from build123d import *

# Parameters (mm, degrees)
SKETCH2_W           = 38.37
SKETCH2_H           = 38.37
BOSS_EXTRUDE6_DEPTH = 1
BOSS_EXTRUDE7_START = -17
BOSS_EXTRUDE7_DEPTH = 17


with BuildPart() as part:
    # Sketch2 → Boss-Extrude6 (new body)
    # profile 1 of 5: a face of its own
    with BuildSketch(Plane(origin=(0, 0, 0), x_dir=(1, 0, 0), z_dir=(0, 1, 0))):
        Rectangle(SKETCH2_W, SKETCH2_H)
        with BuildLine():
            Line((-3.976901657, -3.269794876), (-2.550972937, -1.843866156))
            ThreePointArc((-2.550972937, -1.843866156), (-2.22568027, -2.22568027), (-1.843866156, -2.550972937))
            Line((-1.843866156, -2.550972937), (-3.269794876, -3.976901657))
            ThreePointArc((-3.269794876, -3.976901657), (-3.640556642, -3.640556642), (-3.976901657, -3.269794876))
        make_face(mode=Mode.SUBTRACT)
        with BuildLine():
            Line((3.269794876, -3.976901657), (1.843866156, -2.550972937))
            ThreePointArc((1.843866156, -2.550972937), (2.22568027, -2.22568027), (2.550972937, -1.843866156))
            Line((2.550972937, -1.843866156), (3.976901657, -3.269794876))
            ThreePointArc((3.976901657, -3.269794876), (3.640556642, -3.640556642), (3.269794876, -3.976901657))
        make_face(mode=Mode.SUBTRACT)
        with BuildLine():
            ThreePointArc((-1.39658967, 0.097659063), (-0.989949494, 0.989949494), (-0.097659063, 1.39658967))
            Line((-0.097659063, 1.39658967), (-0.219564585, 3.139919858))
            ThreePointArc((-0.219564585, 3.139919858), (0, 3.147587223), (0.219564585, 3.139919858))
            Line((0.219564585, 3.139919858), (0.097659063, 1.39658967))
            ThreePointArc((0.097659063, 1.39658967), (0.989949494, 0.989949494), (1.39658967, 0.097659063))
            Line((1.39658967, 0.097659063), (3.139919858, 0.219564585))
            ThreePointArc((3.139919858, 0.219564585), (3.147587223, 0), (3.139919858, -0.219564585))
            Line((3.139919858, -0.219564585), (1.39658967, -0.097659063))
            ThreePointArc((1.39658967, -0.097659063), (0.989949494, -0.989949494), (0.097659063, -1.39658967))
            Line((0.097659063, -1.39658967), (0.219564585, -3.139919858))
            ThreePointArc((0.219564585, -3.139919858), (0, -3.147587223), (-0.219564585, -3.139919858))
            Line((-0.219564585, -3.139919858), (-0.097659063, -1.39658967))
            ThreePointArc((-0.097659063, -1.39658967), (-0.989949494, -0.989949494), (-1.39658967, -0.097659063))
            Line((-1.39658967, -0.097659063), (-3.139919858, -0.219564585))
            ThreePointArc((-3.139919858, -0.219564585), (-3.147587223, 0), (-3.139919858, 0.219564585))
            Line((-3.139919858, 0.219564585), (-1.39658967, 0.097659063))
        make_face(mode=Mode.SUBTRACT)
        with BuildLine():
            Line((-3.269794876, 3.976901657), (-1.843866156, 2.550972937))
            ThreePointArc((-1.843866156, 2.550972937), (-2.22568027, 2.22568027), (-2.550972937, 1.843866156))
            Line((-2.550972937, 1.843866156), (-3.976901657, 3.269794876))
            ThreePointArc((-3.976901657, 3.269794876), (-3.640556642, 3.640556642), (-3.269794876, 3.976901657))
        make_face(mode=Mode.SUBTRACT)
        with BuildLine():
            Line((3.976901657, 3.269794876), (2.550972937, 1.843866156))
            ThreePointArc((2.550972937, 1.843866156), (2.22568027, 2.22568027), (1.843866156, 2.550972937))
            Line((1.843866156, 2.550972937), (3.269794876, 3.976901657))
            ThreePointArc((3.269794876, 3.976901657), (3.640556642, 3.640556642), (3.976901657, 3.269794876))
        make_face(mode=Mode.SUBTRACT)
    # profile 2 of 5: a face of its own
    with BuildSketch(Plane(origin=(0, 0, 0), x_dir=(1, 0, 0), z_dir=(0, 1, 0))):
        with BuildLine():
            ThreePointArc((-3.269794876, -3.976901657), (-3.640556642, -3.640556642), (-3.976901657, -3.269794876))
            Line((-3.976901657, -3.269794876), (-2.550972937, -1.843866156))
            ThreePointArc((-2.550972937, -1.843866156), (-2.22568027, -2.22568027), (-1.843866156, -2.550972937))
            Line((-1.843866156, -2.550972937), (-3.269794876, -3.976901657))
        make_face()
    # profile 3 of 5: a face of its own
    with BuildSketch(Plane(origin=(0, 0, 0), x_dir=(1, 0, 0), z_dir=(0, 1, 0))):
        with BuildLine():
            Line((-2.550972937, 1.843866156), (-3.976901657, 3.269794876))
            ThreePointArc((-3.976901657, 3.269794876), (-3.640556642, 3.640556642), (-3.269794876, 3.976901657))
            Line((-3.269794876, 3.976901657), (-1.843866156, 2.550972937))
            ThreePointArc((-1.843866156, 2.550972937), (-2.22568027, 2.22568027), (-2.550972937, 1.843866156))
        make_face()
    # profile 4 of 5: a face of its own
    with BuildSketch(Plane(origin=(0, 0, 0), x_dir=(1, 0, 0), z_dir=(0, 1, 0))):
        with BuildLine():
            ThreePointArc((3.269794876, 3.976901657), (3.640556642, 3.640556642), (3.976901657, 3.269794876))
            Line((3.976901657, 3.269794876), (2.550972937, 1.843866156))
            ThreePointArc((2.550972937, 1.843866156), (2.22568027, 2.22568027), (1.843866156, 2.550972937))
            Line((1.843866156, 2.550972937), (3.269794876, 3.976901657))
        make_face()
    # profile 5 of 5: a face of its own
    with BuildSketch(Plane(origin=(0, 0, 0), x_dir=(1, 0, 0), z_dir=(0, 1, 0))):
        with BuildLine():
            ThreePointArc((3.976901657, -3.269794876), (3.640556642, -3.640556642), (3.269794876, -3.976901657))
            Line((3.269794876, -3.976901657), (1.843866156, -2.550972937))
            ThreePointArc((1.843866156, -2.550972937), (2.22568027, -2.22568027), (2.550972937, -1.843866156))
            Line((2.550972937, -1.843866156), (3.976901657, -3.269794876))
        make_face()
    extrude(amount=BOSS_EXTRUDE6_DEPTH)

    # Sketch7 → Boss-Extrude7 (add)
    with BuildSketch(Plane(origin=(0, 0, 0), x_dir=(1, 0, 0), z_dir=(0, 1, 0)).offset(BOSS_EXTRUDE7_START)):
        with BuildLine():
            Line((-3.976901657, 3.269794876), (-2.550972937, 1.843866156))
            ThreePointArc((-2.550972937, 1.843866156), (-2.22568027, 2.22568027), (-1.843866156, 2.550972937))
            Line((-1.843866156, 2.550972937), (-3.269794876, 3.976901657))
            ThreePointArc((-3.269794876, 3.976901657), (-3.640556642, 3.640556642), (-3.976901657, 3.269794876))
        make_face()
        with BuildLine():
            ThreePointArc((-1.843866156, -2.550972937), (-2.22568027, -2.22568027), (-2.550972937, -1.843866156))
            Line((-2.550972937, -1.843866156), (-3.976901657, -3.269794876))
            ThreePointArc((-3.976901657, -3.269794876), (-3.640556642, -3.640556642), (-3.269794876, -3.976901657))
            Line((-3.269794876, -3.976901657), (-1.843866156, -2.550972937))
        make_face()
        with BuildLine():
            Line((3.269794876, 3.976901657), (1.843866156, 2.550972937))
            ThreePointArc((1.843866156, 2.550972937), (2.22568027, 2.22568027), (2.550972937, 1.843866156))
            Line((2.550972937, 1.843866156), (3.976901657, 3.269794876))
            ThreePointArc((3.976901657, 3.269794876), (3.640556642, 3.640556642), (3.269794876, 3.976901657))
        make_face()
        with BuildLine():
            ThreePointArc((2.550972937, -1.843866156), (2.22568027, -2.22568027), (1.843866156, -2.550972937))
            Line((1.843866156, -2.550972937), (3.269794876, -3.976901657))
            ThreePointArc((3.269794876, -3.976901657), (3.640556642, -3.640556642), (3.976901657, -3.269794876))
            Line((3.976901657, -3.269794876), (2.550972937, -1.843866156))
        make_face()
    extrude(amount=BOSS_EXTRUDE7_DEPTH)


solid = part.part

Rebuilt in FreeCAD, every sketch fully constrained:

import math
import FreeCAD as App
import Part
import Sketcher

V = App.Vector
Q = App.Units.Quantity


def add_polygon(sketch, points):
    """Adds a closed chain of lines whose ends are joined by coincident constraints."""
    first, n = sketch.GeometryCount, len(points)
    for a, b in zip(points, points[1:] + points[:1]):
        sketch.addGeometry(Part.LineSegment(App.Vector(*a, 0), App.Vector(*b, 0)), False)
    for i in range(n):
        sketch.addConstraint(Sketcher.Constraint("Coincident", first + i, 2, first + (i + 1) % n, 1))

doc = App.newDocument("Part")
body = doc.addObject("PartDesign::Body", "Body")

sketch1 = body.newObject("Sketcher::SketchObject", "Sketch")
sketch1.AttachmentSupport = (doc.getObject("XZ_Plane"), [""])
sketch1.MapMode = "FlatFace"
add_polygon(sketch1, [(-19.18, -19.18), (-19.18, 19.18), (19.18, 19.18), (19.18, -19.18)])
sketch1.addGeometry(Part.LineSegment(V(-3.14, -0.22, 0), V(-1.4, -0.1, 0)), False)
sketch1.addGeometry(Part.ArcOfCircle(Part.Circle(V(0, 0, 0), V(0, 0, 1), 1.4), math.radians(-176), math.radians(-94)), False)
sketch1.addGeometry(Part.LineSegment(V(-0.1, -1.4, 0), V(-0.22, -3.14, 0)), False)
sketch1.addGeometry(Part.ArcOfCircle(Part.Circle(V(0, 0, 0), V(0, 0, 1), 3.15), math.radians(-94), math.radians(-86)), False)
sketch1.addGeometry(Part.LineSegment(V(0.22, -3.14, 0), V(0.1, -1.4, 0)), False)
sketch1.addGeometry(Part.ArcOfCircle(Part.Circle(V(0, 0, 0), V(0, 0, 1), 1.4), math.radians(-86), math.radians(-4)), False)
sketch1.addGeometry(Part.LineSegment(V(1.4, -0.1, 0), V(3.14, -0.22, 0)), False)
sketch1.addGeometry(Part.ArcOfCircle(Part.Circle(V(0, 0, 0), V(0, 0, 1), 3.15), math.radians(-4), math.radians(4)), False)
sketch1.addGeometry(Part.LineSegment(V(3.14, 0.22, 0), V(1.4, 0.1, 0)), False)
sketch1.addGeometry(Part.ArcOfCircle(Part.Circle(V(0, 0, 0), V(0, 0, 1), 1.4), math.radians(4), math.radians(86)), False)
sketch1.addGeometry(Part.LineSegment(V(0.1, 1.4, 0), V(0.22, 3.14, 0)), False)
sketch1.addGeometry(Part.ArcOfCircle(Part.Circle(V(0, 0, 0), V(0, 0, 1), 3.15), math.radians(86), math.radians(94)), False)
sketch1.addGeometry(Part.LineSegment(V(-0.22, 3.14, 0), V(-0.1, 1.4, 0)), False)
sketch1.addGeometry(Part.ArcOfCircle(Part.Circle(V(0, 0, 0), V(0, 0, 1), 1.4), math.radians(94), math.radians(176)), False)
sketch1.addGeometry(Part.LineSegment(V(-1.4, 0.1, 0), V(-3.14, 0.22, 0)), False)
sketch1.addGeometry(Part.ArcOfCircle(Part.Circle(V(0, 0, 0), V(0, 0, 1), 3.15), math.radians(176), math.radians(184)), False)
sketch1.addConstraint([
    Sketcher.Constraint("Coincident", 4, 2, 5, 1),
    Sketcher.Constraint("Coincident", 5, 2, 6, 1),
    Sketcher.Constraint("Coincident", 6, 2, 7, 1),
    Sketcher.Constraint("Coincident", 7, 2, 8, 1),
    Sketcher.Constraint("Coincident", 8, 2, 9, 1),
    Sketcher.Constraint("Coincident", 9, 2, 10, 1),
    Sketcher.Constraint("Coincident", 10, 2, 11, 1),
    Sketcher.Constraint("Coincident", 11, 2, 12, 1),
    Sketcher.Constraint("Coincident", 12, 2, 13, 1),
    Sketcher.Constraint("Coincident", 13, 2, 14, 1),
    Sketcher.Constraint("Coincident", 14, 2, 15, 1),
    Sketcher.Constraint("Coincident", 15, 2, 16, 1),
    Sketcher.Constraint("Coincident", 16, 2, 17, 1),
    Sketcher.Constraint("Coincident", 17, 2, 18, 1),
    Sketcher.Constraint("Coincident", 18, 2, 19, 1),
    Sketcher.Constraint("Coincident", 19, 2, 4, 1),
    Sketcher.Constraint("Vertical", 0),
    Sketcher.Constraint("Horizontal", 1),
    Sketcher.Constraint("Vertical", 2),
    Sketcher.Constraint("Horizontal", 3),
    Sketcher.Constraint("Coincident", 5, 3, -1, 1),
    Sketcher.Constraint("Coincident", 7, 3, -1, 1),
    Sketcher.Constraint("Coincident", 9, 3, -1, 1),
    Sketcher.Constraint("Coincident", 11, 3, -1, 1),
    Sketcher.Constraint("Coincident", 13, 3, -1, 1),
    Sketcher.Constraint("Coincident", 15, 3, -1, 1),
    Sketcher.Constraint("Coincident", 17, 3, -1, 1),
    Sketcher.Constraint("Coincident", 19, 3, -1, 1),
    Sketcher.Constraint("Equal", 5, 9),
    Sketcher.Constraint("Equal", 7, 11),
    Sketcher.Constraint("Equal", 9, 13),
    Sketcher.Constraint("Equal", 11, 15),
    Sketcher.Constraint("Equal", 13, 17),
    Sketcher.Constraint("Equal", 15, 19),
    Sketcher.Constraint("Symmetric", 0, 2, 2, 2, -1, 1),
    Sketcher.Constraint("Perpendicular", 4, 8),
    Sketcher.Constraint("Perpendicular", 6, 10),
    Sketcher.Constraint("Perpendicular", 8, 12),
    Sketcher.Constraint("Perpendicular", 10, 14),
    Sketcher.Constraint("Perpendicular", 12, 16),
    Sketcher.Constraint("Perpendicular", 14, 18),
    Sketcher.Constraint("Horizontal", 6, 2, 7, 2),
    Sketcher.Constraint("Horizontal", 5, 2, 8, 2),
    Sketcher.Constraint("Horizontal", 4, 2, 9, 2),
    Sketcher.Constraint("Horizontal", 14, 2, 15, 2),
    Sketcher.Constraint("Horizontal", 12, 2, 17, 2),
    Sketcher.Constraint("Vertical", 10, 2, 11, 2),
    Sketcher.Constraint("Vertical", 8, 2, 13, 2),
    Sketcher.Constraint("Equal", 3, 0),
    Sketcher.Constraint("Radius", 5, Q("1.4 mm")),
    Sketcher.Constraint("Angle", 4, Q("4 deg")),
    Sketcher.Constraint("DistanceX", 1, 1, 1, 2, Q("38.37 mm")),
    Sketcher.Constraint("Radius", 7, Q("3.147587 mm")),
    Sketcher.Constraint("DistanceX", 4, 2, -1, 1, Q("1.39659 mm")),
    Sketcher.Constraint("DistanceX", 5, 2, -1, 1, Q("0.097659 mm")),
])
pad1 = body.newObject("PartDesign::Pad", "Pad")
pad1.Profile = sketch1
pad1.Length = 1
pad1.Reversed = True

sketch2 = body.newObject("Sketcher::SketchObject", "Sketch001")
sketch2.AttachmentSupport = (doc.getObject("XZ_Plane"), [""])
sketch2.MapMode = "FlatFace"
sketch2.AttachmentOffset = App.Placement(V(0, 0, 17), App.Rotation())
sketch2.addGeometry([
    Part.LineSegment(V(-4, -3.3, 0), V(-2.6, -1.8, 0)),
    Part.ArcOfCircle(Part.Circle(V(0, 0, 0), V(0, 0, 1), 3.1), math.radians(-144.14), math.radians(-125.86)),
    Part.LineSegment(V(-1.8, -2.6, 0), V(-3.3, -4, 0)),
    Part.ArcOfCircle(Part.Circle(V(0, 0, 0), V(0, 0, 1), 5.1), math.radians(-140.57), math.radians(-129.43)),
    Part.ArcOfCircle(Part.Circle(V(0, 0, 0), V(0, 0, 1), 3.1), math.radians(125.86), math.radians(144.14)),
    Part.LineSegment(V(-2.6, 1.8, 0), V(-4, 3.3, 0)),
    Part.ArcOfCircle(Part.Circle(V(0, 0, 0), V(0, 0, 1), 5.1), math.radians(129.43), math.radians(140.57)),
    Part.LineSegment(V(-3.3, 4, 0), V(-1.8, 2.6, 0)),
    Part.LineSegment(V(3.3, -4, 0), V(1.8, -2.6, 0)),
    Part.ArcOfCircle(Part.Circle(V(0, 0, 0), V(0, 0, 1), 3.1), math.radians(-54.14), math.radians(-35.86)),
    Part.LineSegment(V(2.6, -1.8, 0), V(4, -3.3, 0)),
    Part.ArcOfCircle(Part.Circle(V(0, 0, 0), V(0, 0, 1), 5.1), math.radians(-50.57), math.radians(-39.43)),
    Part.ArcOfCircle(Part.Circle(V(0, 0, 0), V(0, 0, 1), 3.1), math.radians(35.86), math.radians(54.14)),
    Part.LineSegment(V(1.8, 2.6, 0), V(3.3, 4, 0)),
    Part.ArcOfCircle(Part.Circle(V(0, 0, 0), V(0, 0, 1), 5.1), math.radians(39.43), math.radians(50.57)),
    Part.LineSegment(V(4, 3.3, 0), V(2.6, 1.8, 0)),
], False)
sketch2.addConstraint([
    Sketcher.Constraint("Coincident", 0, 2, 1, 1),
    Sketcher.Constraint("Coincident", 1, 2, 2, 1),
    Sketcher.Constraint("Coincident", 2, 2, 3, 2),
    Sketcher.Constraint("Coincident", 3, 1, 0, 1),
    Sketcher.Constraint("Coincident", 4, 2, 5, 1),
    Sketcher.Constraint("Coincident", 5, 2, 6, 2),
    Sketcher.Constraint("Coincident", 6, 1, 7, 1),
    Sketcher.Constraint("Coincident", 7, 2, 4, 1),
    Sketcher.Constraint("Coincident", 8, 2, 9, 1),
    Sketcher.Constraint("Coincident", 9, 2, 10, 1),
    Sketcher.Constraint("Coincident", 10, 2, 11, 2),
    Sketcher.Constraint("Coincident", 11, 1, 8, 1),
    Sketcher.Constraint("Coincident", 12, 2, 13, 1),
    Sketcher.Constraint("Coincident", 13, 2, 14, 2),
    Sketcher.Constraint("Coincident", 14, 1, 15, 1),
    Sketcher.Constraint("Coincident", 15, 2, 12, 1),
    Sketcher.Constraint("Coincident", 1, 3, -1, 1),
    Sketcher.Constraint("Coincident", 3, 3, -1, 1),
    Sketcher.Constraint("Coincident", 4, 3, -1, 1),
    Sketcher.Constraint("Coincident", 6, 3, -1, 1),
    Sketcher.Constraint("Coincident", 9, 3, -1, 1),
    Sketcher.Constraint("Coincident", 11, 3, -1, 1),
    Sketcher.Constraint("Coincident", 12, 3, -1, 1),
    Sketcher.Constraint("Coincident", 14, 3, -1, 1),
    Sketcher.Constraint("Equal", 1, 4),
    Sketcher.Constraint("Equal", 3, 6),
    Sketcher.Constraint("Equal", 4, 9),
    Sketcher.Constraint("Equal", 6, 11),
    Sketcher.Constraint("Equal", 9, 12),
    Sketcher.Constraint("Equal", 11, 14),
    Sketcher.Constraint("Parallel", 0, 2),
    Sketcher.Constraint("Perpendicular", 2, 5),
    Sketcher.Constraint("Parallel", 5, 7),
    Sketcher.Constraint("Parallel", 7, 8),
    Sketcher.Constraint("Parallel", 8, 10),
    Sketcher.Constraint("Perpendicular", 10, 13),
    Sketcher.Constraint("Parallel", 13, 15),
    Sketcher.Constraint("Horizontal", 1, 2, 8, 2),
    Sketcher.Constraint("Horizontal", 0, 2, 9, 2),
    Sketcher.Constraint("Horizontal", 3, 1, 10, 2),
    Sketcher.Constraint("Horizontal", 7, 2, 12, 2),
    Sketcher.Constraint("Horizontal", 5, 2, 14, 1),
    Sketcher.Constraint("Vertical", 0, 2, 4, 2),
    Sketcher.Constraint("Vertical", 2, 2, 6, 1),
    Sketcher.Constraint("Equal", 0, 2),
    Sketcher.Constraint("Radius", 1, Q("3.147587 mm")),
    Sketcher.Constraint("Radius", 3, Q("5.148524 mm")),
    Sketcher.Constraint("DistanceY", 2, 2, -1, 1, Q("3.976902 mm")),
])
pad2 = body.newObject("PartDesign::Pad", "Pad001")
pad2.Profile = sketch2
pad2.Length = 17
pad2.Reversed = True

doc.recompute()
